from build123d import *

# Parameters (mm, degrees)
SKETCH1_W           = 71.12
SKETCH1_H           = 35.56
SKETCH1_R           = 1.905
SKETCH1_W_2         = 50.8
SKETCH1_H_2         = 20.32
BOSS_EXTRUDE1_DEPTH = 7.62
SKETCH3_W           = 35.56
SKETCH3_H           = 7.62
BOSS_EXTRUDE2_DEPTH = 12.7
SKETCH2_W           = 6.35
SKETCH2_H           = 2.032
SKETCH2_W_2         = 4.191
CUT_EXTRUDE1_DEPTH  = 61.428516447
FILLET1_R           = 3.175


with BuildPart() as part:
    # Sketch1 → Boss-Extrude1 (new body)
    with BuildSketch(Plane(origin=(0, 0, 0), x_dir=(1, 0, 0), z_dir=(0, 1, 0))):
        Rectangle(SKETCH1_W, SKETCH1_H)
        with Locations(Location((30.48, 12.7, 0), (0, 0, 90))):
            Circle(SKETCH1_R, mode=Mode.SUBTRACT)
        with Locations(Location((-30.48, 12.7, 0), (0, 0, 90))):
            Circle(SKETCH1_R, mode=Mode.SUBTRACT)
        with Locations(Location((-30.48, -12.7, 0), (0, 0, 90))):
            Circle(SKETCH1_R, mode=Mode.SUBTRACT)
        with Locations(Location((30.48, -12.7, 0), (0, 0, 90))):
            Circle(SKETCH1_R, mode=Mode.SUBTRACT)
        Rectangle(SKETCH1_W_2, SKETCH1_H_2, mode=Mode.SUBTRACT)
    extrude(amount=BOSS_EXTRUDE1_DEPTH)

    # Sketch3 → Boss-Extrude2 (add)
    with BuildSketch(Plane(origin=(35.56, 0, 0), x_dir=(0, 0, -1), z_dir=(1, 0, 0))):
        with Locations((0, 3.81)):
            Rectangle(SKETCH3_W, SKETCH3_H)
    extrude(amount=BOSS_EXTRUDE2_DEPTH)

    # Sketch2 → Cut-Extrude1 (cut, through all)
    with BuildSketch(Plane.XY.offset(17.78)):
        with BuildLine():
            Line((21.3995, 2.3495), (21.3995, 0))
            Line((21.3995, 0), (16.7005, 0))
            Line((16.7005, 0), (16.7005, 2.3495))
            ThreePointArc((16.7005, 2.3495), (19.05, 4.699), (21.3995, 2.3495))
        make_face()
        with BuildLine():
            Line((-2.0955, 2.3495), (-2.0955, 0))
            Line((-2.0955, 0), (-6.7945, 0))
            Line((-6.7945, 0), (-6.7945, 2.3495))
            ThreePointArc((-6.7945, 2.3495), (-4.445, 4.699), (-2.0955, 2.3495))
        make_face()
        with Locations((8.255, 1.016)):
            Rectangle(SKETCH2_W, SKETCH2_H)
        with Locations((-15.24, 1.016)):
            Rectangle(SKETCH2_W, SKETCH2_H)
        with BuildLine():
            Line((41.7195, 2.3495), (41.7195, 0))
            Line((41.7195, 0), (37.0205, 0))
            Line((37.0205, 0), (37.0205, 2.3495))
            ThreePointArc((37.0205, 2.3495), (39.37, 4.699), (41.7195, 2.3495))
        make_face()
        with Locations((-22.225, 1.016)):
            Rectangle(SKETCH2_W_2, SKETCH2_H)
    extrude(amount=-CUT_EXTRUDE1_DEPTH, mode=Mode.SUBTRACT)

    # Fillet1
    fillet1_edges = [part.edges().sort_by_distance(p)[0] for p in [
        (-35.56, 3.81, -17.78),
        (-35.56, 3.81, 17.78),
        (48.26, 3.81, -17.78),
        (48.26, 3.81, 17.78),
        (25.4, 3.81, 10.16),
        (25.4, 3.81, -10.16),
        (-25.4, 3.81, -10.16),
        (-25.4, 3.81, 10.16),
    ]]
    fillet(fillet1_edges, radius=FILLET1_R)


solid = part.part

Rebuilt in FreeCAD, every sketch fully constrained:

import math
import FreeCAD as App
import Part
import Sketcher
Q = App.Units.Quantity


def edges_at(feature, points):
    """Names of the edges that pass closest to the given points."""
    edges = feature.Shape.Edges
    near = lambda p: min(range(len(edges)), key=lambda i: edges[i].distToShape(Part.Vertex(*p))[0])
    return sorted({f"Edge{near(p) + 1}" for p in points})

doc = App.newDocument("Part")
body = doc.addObject("PartDesign::Body", "Body")

# Sketch on XZ plane
sketch1 = doc.addObject("Sketcher::SketchObject", "Sketch")
body.addObject(sketch1)
sketch1.AttachmentSupport = (doc.XZ_Plane, [""])
sketch1.MapMode = "FlatFace"
sketch1.addGeometry([
    Part.LineSegment(App.Vector(-35.56, -17.78, 0), App.Vector(-35.56, 17.78, 0)),  # 0
    Part.LineSegment(App.Vector(-35.56, 17.78, 0), App.Vector(35.56, 17.78, 0)),  # 1
    Part.LineSegment(App.Vector(35.56, 17.78, 0), App.Vector(35.56, -17.78, 0)),  # 2
    Part.LineSegment(App.Vector(35.56, -17.78, 0), App.Vector(-35.56, -17.78, 0)),  # 3
    Part.Circle(App.Vector(-30.48, 12.7, 0), App.Vector(0, 0, 1), 1.905),  # 4
    Part.Circle(App.Vector(30.48, 12.7, 0), App.Vector(0, 0, 1), 1.905),  # 5
    Part.Circle(App.Vector(-30.48, -12.7, 0), App.Vector(0, 0, 1), 1.905),  # 6
    Part.LineSegment(App.Vector(25.4, 10.16, 0), App.Vector(-25.4, 10.16, 0)),  # 7
    Part.LineSegment(App.Vector(-25.4, 10.16, 0), App.Vector(-25.4, -10.16, 0)),  # 8
    Part.LineSegment(App.Vector(-25.4, -10.16, 0), App.Vector(25.4, -10.16, 0)),  # 9
    Part.LineSegment(App.Vector(25.4, -10.16, 0), App.Vector(25.4, 10.16, 0)),  # 10
    Part.Circle(App.Vector(30.48, -12.7, 0), App.Vector(0, 0, 1), 1.905),  # 11
], False)
sketch1.addConstraint([
    Sketcher.Constraint("Coincident", 0, 2, 1, 1),
    Sketcher.Constraint("Coincident", 1, 2, 2, 1),
    Sketcher.Constraint("Coincident", 2, 2, 3, 1),
    Sketcher.Constraint("Coincident", 3, 2, 0, 1),
    Sketcher.Constraint("Coincident", 7, 2, 8, 1),
    Sketcher.Constraint("Coincident", 8, 2, 9, 1),
    Sketcher.Constraint("Coincident", 9, 2, 10, 1),
    Sketcher.Constraint("Coincident", 10, 2, 7, 1),
    Sketcher.Constraint("Vertical", 0),
    Sketcher.Constraint("Horizontal", 1),
    Sketcher.Constraint("Vertical", 2),
    Sketcher.Constraint("Horizontal", 3),
    Sketcher.Constraint("Horizontal", 7),
    Sketcher.Constraint("Vertical", 8),
    Sketcher.Constraint("Horizontal", 9),
    Sketcher.Constraint("Vertical", 10),
    Sketcher.Constraint("Equal", 4, 5),
    Sketcher.Constraint("Equal", 5, 6),
    Sketcher.Constraint("Equal", 6, 11),
    Sketcher.Constraint("Symmetric", 5, 3, 6, 3, -1, 1),
    Sketcher.Constraint("Symmetric", 4, 3, 11, 3, -1, 1),
    Sketcher.Constraint("Symmetric", 0, 2, 2, 2, -1, 1),
    Sketcher.Constraint("Symmetric", 7, 2, 9, 2, -1, 1),
    Sketcher.Constraint("Symmetric", 4, 3, 5, 3, -2),
    Sketcher.Constraint("Diameter", 4, Q("0.15 in")),
    Sketcher.Constraint("DistanceX", 7, 2, 7, 1, Q("2 in")),
    Sketcher.Constraint("DistanceX", 1, 1, 1, 2, Q("2.8 in")),
    Sketcher.Constraint("DistanceY", 0, 1, 0, 2, Q("1.4 in")),
    Sketcher.Constraint("DistanceY", 8, 2, 8, 1, Q("0.8 in")),
    Sketcher.Constraint("DistanceY", 6, 3, 4, 3, Q("1 in")),
    Sketcher.Constraint("DistanceX", 4, 3, -1, 1, Q("1.2 in")),
])
pad1 = doc.addObject("PartDesign::Pad", "Pad")
body.addObject(pad1)
pad1.Profile = sketch1
pad1.Length = Q("0.3 in")
pad1.Reversed = True

# Sketch on YZ plane
sketch2 = doc.addObject("Sketcher::SketchObject", "Sketch001")
body.addObject(sketch2)
sketch2.AttachmentSupport = (doc.YZ_Plane, [""])
sketch2.MapMode = "FlatFace"
sketch2.AttachmentOffset = App.Placement(App.Vector(0, 0, 1.4 * 25.4), App.Rotation())
sketch2.addGeometry([
    Part.LineSegment(App.Vector(7.62, 17.78, 0), App.Vector(0, 17.78, 0)),
    Part.LineSegment(App.Vector(0, 17.78, 0), App.Vector(0, -17.78, 0)),
    Part.LineSegment(App.Vector(0, -17.78, 0), App.Vector(7.62, -17.78, 0)),
    Part.LineSegment(App.Vector(7.62, -17.78, 0), App.Vector(7.62, 17.78, 0)),
], False)
sketch2.addConstraint([
    Sketcher.Constraint("Coincident", 0, 2, 1, 1),
    Sketcher.Constraint("Coincident", 1, 2, 2, 1),
    Sketcher.Constraint("Coincident", 2, 2, 3, 1),
    Sketcher.Constraint("Coincident", 3, 2, 0, 1),
    Sketcher.Constraint("Horizontal", 0),
    Sketcher.Constraint("Vertical", 1),
    Sketcher.Constraint("Horizontal", 2),
    Sketcher.Constraint("Vertical", 3),
    Sketcher.Constraint("Symmetric", 0, 2, 1, 2, -1, 1),
    Sketcher.Constraint("DistanceX", 0, 2, 0, 1, Q("0.3 in")),
    Sketcher.Constraint("DistanceY", 1, 2, 1, 1, Q("1.4 in")),
])
pad2 = doc.addObject("PartDesign::Pad", "Pad001")
body.addObject(pad2)
pad2.Profile = sketch2
pad2.Length = Q("0.5 in")

# Sketch on XY plane
sketch3 = doc.addObject("Sketcher::SketchObject", "Sketch002")
body.addObject(sketch3)
sketch3.AttachmentSupport = (doc.XY_Plane, [""])
sketch3.MapMode = "FlatFace"
sketch3.AttachmentOffset = App.Placement(App.Vector(0, 0, 0.7 * 25.4), App.Rotation())
sketch3.addGeometry([
    Part.LineSegment(App.Vector(21.3995, 0, 0), App.Vector(21.3995, 2.3495, 0)),  # 0
    Part.ArcOfCircle(Part.Circle(App.Vector(19.05, 2.3495, 0), App.Vector(0, 0, 1), 2.3495), math.radians(0), math.radians(180)),  # 1
    Part.LineSegment(App.Vector(16.7005, 2.3495, 0), App.Vector(16.7005, 0, 0)),  # 2
    Part.LineSegment(App.Vector(16.7005, 0, 0), App.Vector(21.3995, 0, 0)),  # 3
    Part.LineSegment(App.Vector(-2.0955, 0, 0), App.Vector(-2.0955, 2.3495, 0)),  # 4
    Part.ArcOfCircle(Part.Circle(App.Vector(-4.445, 2.3495, 0), App.Vector(0, 0, 1), 2.3495), math.radians(0), math.radians(180)),  # 5
    Part.LineSegment(App.Vector(-6.7945, 2.3495, 0), App.Vector(-6.7945, 0, 0)),  # 6
    Part.LineSegment(App.Vector(-6.7945, 0, 0), App.Vector(-2.0955, 0, 0)),  # 7
    Part.LineSegment(App.Vector(5.08, 2.032, 0), App.Vector(5.08, 0, 0)),  # 8
    Part.LineSegment(App.Vector(5.08, 0, 0), App.Vector(11.43, 0, 0)),  # 9
    Part.LineSegment(App.Vector(11.43, 0, 0), App.Vector(11.43, 2.032, 0)),  # 10
    Part.LineSegment(App.Vector(11.43, 2.032, 0), App.Vector(5.08, 2.032, 0)),  # 11
    Part.LineSegment(App.Vector(-18.415, 2.032, 0), App.Vector(-18.415, 0, 0)),  # 12
    Part.LineSegment(App.Vector(-18.415, 0, 0), App.Vector(-12.065, 0, 0)),  # 13
    Part.LineSegment(App.Vector(-12.065, 0, 0), App.Vector(-12.065, 2.032, 0)),  # 14
    Part.LineSegment(App.Vector(-12.065, 2.032, 0), App.Vector(-18.415, 2.032, 0)),  # 15
    Part.LineSegment(App.Vector(41.7195, 0, 0), App.Vector(41.7195, 2.3495, 0)),  # 16
    Part.ArcOfCircle(Part.Circle(App.Vector(39.37, 2.3495, 0), App.Vector(0, 0, 1), 2.3495), math.radians(0), math.radians(180)),  # 17
    Part.LineSegment(App.Vector(37.0205, 2.3495, 0), App.Vector(37.0205, 0, 0)),  # 18
    Part.LineSegment(App.Vector(37.0205, 0, 0), App.Vector(41.7195, 0, 0)),  # 19
    Part.LineSegment(App.Vector(-24.3205, 2.032, 0), App.Vector(-24.3205, 0, 0)),  # 20
    Part.LineSegment(App.Vector(-24.3205, 0, 0), App.Vector(-20.1295, 0, 0)),  # 21
    Part.LineSegment(App.Vector(-20.1295, 0, 0), App.Vector(-20.1295, 2.032, 0)),  # 22
    Part.LineSegment(App.Vector(-20.1295, 2.032, 0), App.Vector(-24.3205, 2.032, 0)),  # 23
], False)
sketch3.addConstraint([
    Sketcher.Constraint("Tangent", 0, 2, 1, 1),
    Sketcher.Constraint("Tangent", 1, 2, 2, 1),
    Sketcher.Constraint("Coincident", 2, 2, 3, 1),
    Sketcher.Constraint("Coincident", 3, 2, 0, 1),
    Sketcher.Constraint("Tangent", 4, 2, 5, 1),
    Sketcher.Constraint("Tangent", 5, 2, 6, 1),
    Sketcher.Constraint("Coincident", 6, 2, 7, 1),
    Sketcher.Constraint("Coincident", 7, 2, 4, 1),
    Sketcher.Constraint("Coincident", 8, 2, 9, 1),
    Sketcher.Constraint("Coincident", 9, 2, 10, 1),
    Sketcher.Constraint("Coincident", 10, 2, 11, 1),
    Sketcher.Constraint("Coincident", 11, 2, 8, 1),
    Sketcher.Constraint("Coincident", 12, 2, 13, 1),
    Sketcher.Constraint("Coincident", 13, 2, 14, 1),
    Sketcher.Constraint("Coincident", 14, 2, 15, 1),
    Sketcher.Constraint("Coincident", 15, 2, 12, 1),
    Sketcher.Constraint("Tangent", 16, 2, 17, 1),
    Sketcher.Constraint("Tangent", 17, 2, 18, 1),
    Sketcher.Constraint("Coincident", 18, 2, 19, 1),
    Sketcher.Constraint("Coincident", 19, 2, 16, 1),
    Sketcher.Constraint("Coincident", 20, 2, 21, 1),
    Sketcher.Constraint("Coincident", 21, 2, 22, 1),
    Sketcher.Constraint("Coincident", 22, 2, 23, 1),
    Sketcher.Constraint("Coincident", 23, 2, 20, 1),
    Sketcher.Constraint("Vertical", 0),
    Sketcher.Constraint("Vertical", 2),
    Sketcher.Constraint("Horizontal", 3),
    Sketcher.Constraint("Vertical", 4),
    Sketcher.Constraint("Vertical", 6),
    Sketcher.Constraint("Horizontal", 7),
    Sketcher.Constraint("Vertical", 8),
    Sketcher.Constraint("Horizontal", 9),
    Sketcher.Constraint("Vertical", 10),
    Sketcher.Constraint("Horizontal", 11),
    Sketcher.Constraint("Vertical", 12),
    Sketcher.Constraint("Horizontal", 13),
    Sketcher.Constraint("Vertical", 14),
    Sketcher.Constraint("Horizontal", 15),
    Sketcher.Constraint("Vertical", 16),
    Sketcher.Constraint("Vertical", 18),
    Sketcher.Constraint("Horizontal", 19),
    Sketcher.Constraint("Vertical", 20),
    Sketcher.Constraint("Horizontal", 21),
    Sketcher.Constraint("Vertical", 22),
    Sketcher.Constraint("Horizontal", 23),
    Sketcher.Constraint("Equal", 1, 5),
    Sketcher.Constraint("Equal", 5, 17),
    Sketcher.Constraint("PointOnObject", 2, 2, -1),
    Sketcher.Constraint("PointOnObject", 6, 2, -1),
    Sketcher.Constraint("PointOnObject", 8, 2, -1),
    Sketcher.Constraint("PointOnObject", 12, 2, -1),
    Sketcher.Constraint("PointOnObject", 18, 2, -1),
    Sketcher.Constraint("PointOnObject", 20, 2, -1),
    Sketcher.Constraint("Horizontal", 1, 3, 5, 3),
    Sketcher.Constraint("Horizontal", 5, 3, 17, 3),
    Sketcher.Constraint("Horizontal", 11, 2, 14, 2),
    Sketcher.Constraint("Horizontal", 15, 2, 22, 2),
    Sketcher.Constraint("Equal", 11, 13),
    Sketcher.Constraint("DistanceX", 9, 1, 9, 2, Q("0.25 in")),
    Sketcher.Constraint("DistanceY", 8, 2, 8, 1, Q("0.08 in")),
    Sketcher.Constraint("DistanceX", -1, 1, 8, 2, Q("0.2 in")),
    Sketcher.Constraint("Radius", 1, Q("0.0925 in")),
    Sketcher.Constraint("DistanceX", 1, 3, 17, 3, Q("0.8 in")),
    Sketcher.Constraint("DistanceX", 9, 2, 1, 3, Q("0.3 in")),
    Sketcher.Constraint("DistanceX", 13, 2, 5, 3, Q("0.3 in")),
    Sketcher.Constraint("DistanceX", 21, 1, 21, 2, Q("0.165 in")),
    Sketcher.Constraint("DistanceX", 4, 2, 1, 2, Q("0.74 in")),
    Sketcher.Constraint("DistanceX", 20, 2, 6, 2, Q("0.69 in")),
    Sketcher.Constraint("DistanceY", 0, 1, 0, 2, Q("0.0925 in")),
])
pocket1 = doc.addObject("PartDesign::Pocket", "Pocket")
body.addObject(pocket1)
pocket1.Profile = sketch3
pocket1.Type = "ThroughAll"
doc.recompute()

fillet = doc.addObject("PartDesign::Fillet", "Fillet")
body.addObject(fillet)
fillet.Base = (pocket1, edges_at(pocket1, [
    (-35.56, 3.81, -17.78),
    (-35.56, 3.81, 17.78),
    (48.26, 3.81, -17.78),
    (48.26, 3.81, 17.78),
    (25.4, 3.81, 10.16),
    (25.4, 3.81, -10.16),
    (-25.4, 3.81, -10.16),
    (-25.4, 3.81, 10.16),
]))
fillet.Radius = Q("0.125 in")

doc.recompute()
